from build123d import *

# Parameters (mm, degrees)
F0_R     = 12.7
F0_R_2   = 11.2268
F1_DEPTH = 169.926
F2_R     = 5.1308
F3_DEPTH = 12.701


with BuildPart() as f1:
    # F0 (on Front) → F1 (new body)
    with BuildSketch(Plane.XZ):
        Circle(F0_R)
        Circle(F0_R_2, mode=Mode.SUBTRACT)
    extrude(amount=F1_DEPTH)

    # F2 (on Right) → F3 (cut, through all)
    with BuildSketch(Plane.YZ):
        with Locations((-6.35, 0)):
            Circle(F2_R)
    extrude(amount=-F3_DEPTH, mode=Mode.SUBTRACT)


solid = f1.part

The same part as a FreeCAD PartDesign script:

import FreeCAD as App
import Part
import Sketcher
from FreeCAD import Vector
Q = App.Units.Quantity

doc = App.newDocument("Part")
body = doc.addObject("PartDesign::Body", "Body")

sketch1 = body.newObject("Sketcher::SketchObject", "Sketch")
sketch1.AttachmentSupport = (doc.getObject("XZ_Plane"), [""])
sketch1.MapMode = "FlatFace"
sketch1.addGeometry(Part.Circle(Vector(0, 0, 0), Vector(0, 0, 1), 12.7), False)
sketch1.addGeometry(Part.Circle(Vector(0, 0, 0), Vector(0, 0, 1), 11.2268), False)
sketch1.addConstraint(Sketcher.Constraint("Coincident", 0, 3, -1, 1))
sketch1.addConstraint(Sketcher.Constraint("Coincident", 1, 3, -1, 1))
sketch1.addConstraint(Sketcher.Constraint("Diameter", 0, Q("1 in")))
sketch1.addConstraint(Sketcher.Constraint("Diameter", 1, Q("0.884 in")))
pad1 = body.newObject("PartDesign::Pad", "Pad")
pad1.Profile = sketch1
pad1.Length = Q("6.69 in")

sketch2 = body.newObject("Sketcher::SketchObject", "Sketch001")
sketch2.AttachmentSupport = (doc.getObject("YZ_Plane"), [""])
sketch2.MapMode = "FlatFace"
sketch2.addGeometry(Part.Circle(Vector(-6.35, 0, 0), Vector(0, 0, 1), 5.1308), False)
sketch2.addConstraint(Sketcher.Constraint("PointOnObject", 0, 3, -1))
sketch2.addConstraint(Sketcher.Constraint("Diameter", 0, Q("0.404 in")))
sketch2.addConstraint(Sketcher.Constraint("DistanceX", 0, 3, -1, 1, Q("0.25 in")))
pocket1 = body.newObject("PartDesign::Pocket", "Pocket")
pocket1.Profile = sketch2
pocket1.Type = "ThroughAll"

doc.recompute()
